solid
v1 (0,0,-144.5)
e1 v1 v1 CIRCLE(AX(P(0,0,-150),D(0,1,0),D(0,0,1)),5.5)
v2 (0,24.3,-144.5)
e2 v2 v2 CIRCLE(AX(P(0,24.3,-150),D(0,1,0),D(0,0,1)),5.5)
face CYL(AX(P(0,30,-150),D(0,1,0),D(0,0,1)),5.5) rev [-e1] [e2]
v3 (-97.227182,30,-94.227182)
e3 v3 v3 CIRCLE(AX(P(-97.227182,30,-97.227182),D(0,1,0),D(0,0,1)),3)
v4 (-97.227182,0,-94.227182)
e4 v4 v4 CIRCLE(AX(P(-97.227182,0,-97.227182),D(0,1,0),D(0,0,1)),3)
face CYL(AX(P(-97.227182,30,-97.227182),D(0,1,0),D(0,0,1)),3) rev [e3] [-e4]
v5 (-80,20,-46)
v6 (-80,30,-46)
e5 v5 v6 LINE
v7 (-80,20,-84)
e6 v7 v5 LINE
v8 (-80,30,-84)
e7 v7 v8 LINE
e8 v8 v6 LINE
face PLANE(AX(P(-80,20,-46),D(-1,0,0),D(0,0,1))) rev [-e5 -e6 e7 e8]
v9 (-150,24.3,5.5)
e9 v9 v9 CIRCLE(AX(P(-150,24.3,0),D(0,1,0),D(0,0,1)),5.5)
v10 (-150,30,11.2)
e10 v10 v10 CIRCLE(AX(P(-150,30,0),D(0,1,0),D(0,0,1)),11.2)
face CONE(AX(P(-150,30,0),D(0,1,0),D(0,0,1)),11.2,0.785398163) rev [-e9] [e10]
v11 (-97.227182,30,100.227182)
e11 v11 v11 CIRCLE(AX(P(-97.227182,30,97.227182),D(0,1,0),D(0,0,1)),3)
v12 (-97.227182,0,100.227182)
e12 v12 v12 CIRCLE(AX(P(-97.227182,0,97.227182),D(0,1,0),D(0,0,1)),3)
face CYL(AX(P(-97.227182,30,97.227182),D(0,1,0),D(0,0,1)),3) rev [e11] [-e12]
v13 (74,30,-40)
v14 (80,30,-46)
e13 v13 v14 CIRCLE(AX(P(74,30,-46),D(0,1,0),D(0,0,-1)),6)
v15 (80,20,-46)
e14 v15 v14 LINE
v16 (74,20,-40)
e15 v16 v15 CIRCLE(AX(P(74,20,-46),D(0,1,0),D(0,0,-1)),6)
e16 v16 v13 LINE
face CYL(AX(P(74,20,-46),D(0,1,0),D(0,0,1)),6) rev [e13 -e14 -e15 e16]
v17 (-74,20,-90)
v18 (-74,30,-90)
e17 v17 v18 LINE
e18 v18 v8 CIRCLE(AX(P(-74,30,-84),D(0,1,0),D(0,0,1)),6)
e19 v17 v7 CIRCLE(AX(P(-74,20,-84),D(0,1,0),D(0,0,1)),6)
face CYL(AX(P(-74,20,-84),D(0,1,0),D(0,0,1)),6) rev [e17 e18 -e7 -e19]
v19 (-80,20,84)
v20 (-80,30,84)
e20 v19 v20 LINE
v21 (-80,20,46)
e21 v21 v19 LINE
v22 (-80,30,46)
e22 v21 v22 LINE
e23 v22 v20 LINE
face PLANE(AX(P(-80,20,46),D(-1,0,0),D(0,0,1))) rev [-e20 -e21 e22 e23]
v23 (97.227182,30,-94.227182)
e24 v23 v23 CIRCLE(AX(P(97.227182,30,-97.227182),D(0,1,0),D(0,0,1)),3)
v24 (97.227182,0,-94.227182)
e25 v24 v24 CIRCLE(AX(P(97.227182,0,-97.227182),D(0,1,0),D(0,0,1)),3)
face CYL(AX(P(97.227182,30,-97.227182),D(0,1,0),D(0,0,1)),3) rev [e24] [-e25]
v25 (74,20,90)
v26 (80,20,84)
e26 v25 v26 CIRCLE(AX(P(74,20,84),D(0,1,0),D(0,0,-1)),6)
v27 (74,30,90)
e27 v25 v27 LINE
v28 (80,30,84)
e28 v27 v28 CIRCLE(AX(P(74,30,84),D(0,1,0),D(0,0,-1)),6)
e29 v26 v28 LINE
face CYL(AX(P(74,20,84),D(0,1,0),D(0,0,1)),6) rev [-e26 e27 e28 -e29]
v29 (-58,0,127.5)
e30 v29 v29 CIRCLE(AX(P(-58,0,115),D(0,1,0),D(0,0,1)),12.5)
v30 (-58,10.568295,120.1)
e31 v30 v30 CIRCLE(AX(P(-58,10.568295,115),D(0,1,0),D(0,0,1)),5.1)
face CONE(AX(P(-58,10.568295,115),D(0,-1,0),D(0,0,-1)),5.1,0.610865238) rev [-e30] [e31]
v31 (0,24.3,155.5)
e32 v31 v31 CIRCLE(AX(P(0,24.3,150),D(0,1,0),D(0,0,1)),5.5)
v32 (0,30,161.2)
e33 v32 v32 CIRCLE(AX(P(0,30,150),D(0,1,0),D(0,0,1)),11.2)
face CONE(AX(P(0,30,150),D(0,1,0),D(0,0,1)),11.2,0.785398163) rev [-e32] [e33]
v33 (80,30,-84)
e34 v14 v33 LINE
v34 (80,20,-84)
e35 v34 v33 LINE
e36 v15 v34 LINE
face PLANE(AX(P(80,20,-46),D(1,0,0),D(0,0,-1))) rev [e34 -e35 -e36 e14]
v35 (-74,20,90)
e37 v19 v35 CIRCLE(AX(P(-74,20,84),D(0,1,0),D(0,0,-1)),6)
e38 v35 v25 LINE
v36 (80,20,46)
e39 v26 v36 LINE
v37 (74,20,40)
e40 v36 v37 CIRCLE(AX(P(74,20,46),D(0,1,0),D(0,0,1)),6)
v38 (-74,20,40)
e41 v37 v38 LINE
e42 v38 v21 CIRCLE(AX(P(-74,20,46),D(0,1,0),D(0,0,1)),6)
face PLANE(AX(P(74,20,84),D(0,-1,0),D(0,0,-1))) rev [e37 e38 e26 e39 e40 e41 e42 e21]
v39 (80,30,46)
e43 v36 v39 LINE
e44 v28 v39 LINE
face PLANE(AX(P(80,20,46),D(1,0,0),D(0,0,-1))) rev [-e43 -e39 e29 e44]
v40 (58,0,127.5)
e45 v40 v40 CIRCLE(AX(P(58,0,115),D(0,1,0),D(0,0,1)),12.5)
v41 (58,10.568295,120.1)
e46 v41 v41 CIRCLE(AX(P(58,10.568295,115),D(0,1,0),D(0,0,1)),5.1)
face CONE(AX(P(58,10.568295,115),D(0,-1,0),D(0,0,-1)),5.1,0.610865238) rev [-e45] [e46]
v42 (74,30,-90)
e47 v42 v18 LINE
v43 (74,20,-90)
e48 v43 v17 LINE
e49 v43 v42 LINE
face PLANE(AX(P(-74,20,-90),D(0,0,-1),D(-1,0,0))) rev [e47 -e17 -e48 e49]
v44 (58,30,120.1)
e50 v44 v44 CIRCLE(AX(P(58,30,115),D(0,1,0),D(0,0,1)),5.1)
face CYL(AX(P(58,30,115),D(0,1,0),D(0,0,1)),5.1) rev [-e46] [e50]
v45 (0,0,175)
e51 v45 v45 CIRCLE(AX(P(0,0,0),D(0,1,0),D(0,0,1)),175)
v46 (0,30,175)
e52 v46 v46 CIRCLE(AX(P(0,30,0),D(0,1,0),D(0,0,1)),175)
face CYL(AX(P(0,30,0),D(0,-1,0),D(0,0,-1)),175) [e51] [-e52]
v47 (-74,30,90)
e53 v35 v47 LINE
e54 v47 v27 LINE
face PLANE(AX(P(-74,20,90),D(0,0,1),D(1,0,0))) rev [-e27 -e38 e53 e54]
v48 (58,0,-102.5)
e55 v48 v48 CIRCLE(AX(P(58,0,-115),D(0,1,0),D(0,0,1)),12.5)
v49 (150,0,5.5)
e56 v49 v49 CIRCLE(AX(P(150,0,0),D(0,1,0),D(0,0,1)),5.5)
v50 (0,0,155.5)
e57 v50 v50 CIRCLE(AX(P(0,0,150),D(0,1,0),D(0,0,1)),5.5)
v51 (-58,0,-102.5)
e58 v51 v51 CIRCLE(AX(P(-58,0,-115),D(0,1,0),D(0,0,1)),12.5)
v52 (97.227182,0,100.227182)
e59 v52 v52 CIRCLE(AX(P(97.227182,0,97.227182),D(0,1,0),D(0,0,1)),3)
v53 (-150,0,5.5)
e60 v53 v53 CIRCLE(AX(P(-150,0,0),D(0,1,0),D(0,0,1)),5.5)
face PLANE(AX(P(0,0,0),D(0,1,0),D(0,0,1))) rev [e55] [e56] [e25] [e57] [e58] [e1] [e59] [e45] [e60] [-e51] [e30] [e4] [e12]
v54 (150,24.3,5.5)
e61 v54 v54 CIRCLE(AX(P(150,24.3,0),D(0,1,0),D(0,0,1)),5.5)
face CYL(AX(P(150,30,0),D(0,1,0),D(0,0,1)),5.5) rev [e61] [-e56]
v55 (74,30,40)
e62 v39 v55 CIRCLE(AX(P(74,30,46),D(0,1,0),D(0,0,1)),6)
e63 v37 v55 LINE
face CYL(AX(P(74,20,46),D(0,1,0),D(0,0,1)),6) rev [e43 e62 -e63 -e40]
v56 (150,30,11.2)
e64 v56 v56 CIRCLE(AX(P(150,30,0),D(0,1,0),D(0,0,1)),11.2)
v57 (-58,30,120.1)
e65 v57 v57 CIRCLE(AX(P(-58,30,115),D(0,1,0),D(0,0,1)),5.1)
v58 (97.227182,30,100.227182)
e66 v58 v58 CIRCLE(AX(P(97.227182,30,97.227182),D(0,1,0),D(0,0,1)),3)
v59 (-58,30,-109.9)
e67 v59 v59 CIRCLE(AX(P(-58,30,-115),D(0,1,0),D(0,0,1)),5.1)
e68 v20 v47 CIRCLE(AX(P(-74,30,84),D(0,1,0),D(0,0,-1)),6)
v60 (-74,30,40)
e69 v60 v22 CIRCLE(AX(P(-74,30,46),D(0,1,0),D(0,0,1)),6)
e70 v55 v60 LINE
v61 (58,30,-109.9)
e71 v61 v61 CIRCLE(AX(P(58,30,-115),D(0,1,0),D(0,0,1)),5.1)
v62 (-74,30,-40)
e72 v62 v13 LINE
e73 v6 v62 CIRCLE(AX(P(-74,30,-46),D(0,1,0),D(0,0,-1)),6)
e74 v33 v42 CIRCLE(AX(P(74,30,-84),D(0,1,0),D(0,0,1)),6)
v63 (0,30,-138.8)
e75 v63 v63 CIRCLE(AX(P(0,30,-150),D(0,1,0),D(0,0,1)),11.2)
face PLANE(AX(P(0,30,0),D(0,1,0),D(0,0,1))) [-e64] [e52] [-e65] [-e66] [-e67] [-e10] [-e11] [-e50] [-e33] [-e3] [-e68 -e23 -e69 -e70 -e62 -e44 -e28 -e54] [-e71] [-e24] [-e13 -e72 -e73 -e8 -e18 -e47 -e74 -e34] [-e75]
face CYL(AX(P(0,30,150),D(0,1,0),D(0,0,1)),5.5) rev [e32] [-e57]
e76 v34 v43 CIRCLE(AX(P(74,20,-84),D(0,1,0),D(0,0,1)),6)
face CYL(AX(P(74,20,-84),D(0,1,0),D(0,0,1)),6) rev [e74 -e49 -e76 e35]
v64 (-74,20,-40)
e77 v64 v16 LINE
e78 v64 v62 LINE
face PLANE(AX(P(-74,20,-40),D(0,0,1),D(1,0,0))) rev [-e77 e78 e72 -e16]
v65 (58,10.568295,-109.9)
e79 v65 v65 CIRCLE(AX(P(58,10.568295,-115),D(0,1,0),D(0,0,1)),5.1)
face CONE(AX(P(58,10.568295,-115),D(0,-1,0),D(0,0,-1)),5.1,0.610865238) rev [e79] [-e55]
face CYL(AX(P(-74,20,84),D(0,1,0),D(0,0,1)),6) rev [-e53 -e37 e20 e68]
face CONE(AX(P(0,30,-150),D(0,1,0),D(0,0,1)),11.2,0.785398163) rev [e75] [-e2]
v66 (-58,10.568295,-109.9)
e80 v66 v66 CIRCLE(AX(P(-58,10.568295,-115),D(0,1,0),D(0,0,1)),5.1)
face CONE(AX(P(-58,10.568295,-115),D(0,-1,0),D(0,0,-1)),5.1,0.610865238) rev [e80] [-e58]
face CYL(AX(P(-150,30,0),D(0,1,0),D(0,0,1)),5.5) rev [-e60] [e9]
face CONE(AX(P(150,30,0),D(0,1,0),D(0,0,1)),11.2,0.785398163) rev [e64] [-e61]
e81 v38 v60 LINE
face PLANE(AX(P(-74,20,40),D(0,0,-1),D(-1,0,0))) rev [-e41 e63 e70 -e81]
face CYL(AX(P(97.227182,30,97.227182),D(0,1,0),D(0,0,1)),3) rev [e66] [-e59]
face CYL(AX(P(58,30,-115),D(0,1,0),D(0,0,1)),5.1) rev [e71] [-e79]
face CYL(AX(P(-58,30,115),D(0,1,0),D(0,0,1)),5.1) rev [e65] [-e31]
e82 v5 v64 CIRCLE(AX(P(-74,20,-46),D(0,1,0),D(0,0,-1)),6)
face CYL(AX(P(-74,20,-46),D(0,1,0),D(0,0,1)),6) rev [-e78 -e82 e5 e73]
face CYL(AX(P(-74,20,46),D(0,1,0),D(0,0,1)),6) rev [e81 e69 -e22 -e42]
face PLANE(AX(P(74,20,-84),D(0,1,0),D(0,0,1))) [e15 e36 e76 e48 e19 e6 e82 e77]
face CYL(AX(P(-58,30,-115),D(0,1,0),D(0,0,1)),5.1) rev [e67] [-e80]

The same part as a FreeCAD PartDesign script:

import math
import FreeCAD as App
import Part
import Sketcher
Q = App.Units.Quantity

doc = App.newDocument("Part")
body = doc.addObject("PartDesign::Body", "Body")

sketch1 = doc.addObject("Sketcher::SketchObject", "Sketch")
body.addObject(sketch1)
sketch1.AttachmentSupport = (doc.XZ_Plane, [""])
sketch1.MapMode = "FlatFace"
sketch1.addGeometry(Part.Circle(App.Vector(0, 0, 0), App.Vector(0, 0, 1), 175), False)
sketch1.addConstraint([
    Sketcher.Constraint("Coincident", 0, 3, -1, 1),
    Sketcher.Constraint("Diameter", 0, Q("350 mm")),
])
pad1 = doc.addObject("PartDesign::Pad", "Pad")
body.addObject(pad1)
pad1.Profile = sketch1
pad1.Length = 30
pad1.Reversed = True

sketch2 = doc.addObject("Sketcher::SketchObject", "Sketch001")
body.addObject(sketch2)
sketch2.AttachmentSupport = (doc.XZ_Plane, [""])
sketch2.MapMode = "FlatFace"
sketch2.AttachmentOffset = App.Placement(App.Vector(0, 0, -30), App.Rotation())
sketch2.addGeometry([
    Part.Circle(App.Vector(-150, 0, 0), App.Vector(0, 0, 1), 5.5),
    Part.Circle(App.Vector(0, 150, 0), App.Vector(0, 0, 1), 5.5),
    Part.Circle(App.Vector(150, 0, 0), App.Vector(0, 0, 1), 5.5),
    Part.Circle(App.Vector(0, -150, 0), App.Vector(0, 0, 1), 5.5),
], False)
sketch2.addConstraint([
    Sketcher.Constraint("Equal", 0, 1),
    Sketcher.Constraint("Equal", 1, 2),
    Sketcher.Constraint("Equal", 2, 3),
    Sketcher.Constraint("Symmetric", 0, 3, 2, 3, -1, 1),
    Sketcher.Constraint("Symmetric", 1, 3, 3, 3, -1, 1),
    Sketcher.Constraint("PointOnObject", 0, 3, -1),
    Sketcher.Constraint("PointOnObject", 1, 3, -2),
    Sketcher.Constraint("Diameter", 0, Q("11 mm")),
    Sketcher.Constraint("DistanceX", 0, 3, -1, 1, Q("150 mm")),
    Sketcher.Constraint("DistanceY", -1, 1, 1, 3, Q("150 mm")),
])
doc.recompute()
hole = doc.addObject("PartDesign::Hole", "Hole")
body.addObject(hole)
hole.Profile = sketch2
hole.ThreadType = "None"
hole.Diameter = 11
hole.DepthType = "ThroughAll"
hole.HoleCutType = "Countersink"
hole.HoleCutDiameter = 22.4
hole.HoleCutCountersinkAngle = 90
hole.Reversed = True

sketch3 = doc.addObject("Sketcher::SketchObject", "Sketch002")
body.addObject(sketch3)
sketch3.AttachmentSupport = (doc.XZ_Plane, [""])
sketch3.MapMode = "FlatFace"
sketch3.AttachmentOffset = App.Placement(App.Vector(0, 0, -30), App.Rotation())
sketch3.addGeometry([
    Part.Circle(App.Vector(-97.227182, 97.227182, 0), App.Vector(0, 0, 1), 3),
    Part.Circle(App.Vector(97.227182, 97.227182, 0), App.Vector(0, 0, 1), 3),
    Part.Circle(App.Vector(97.227182, -97.227182, 0), App.Vector(0, 0, 1), 3),
    Part.Circle(App.Vector(-97.227182, -97.227182, 0), App.Vector(0, 0, 1), 3),
], False)
sketch3.addConstraint([
    Sketcher.Constraint("Equal", 0, 1),
    Sketcher.Constraint("Equal", 1, 2),
    Sketcher.Constraint("Equal", 2, 3),
    Sketcher.Constraint("Symmetric", 0, 3, 2, 3, -1, 1),
    Sketcher.Constraint("Symmetric", 1, 3, 3, 3, -1, 1),
    Sketcher.Constraint("Symmetric", 0, 3, 1, 3, -2),
    Sketcher.Constraint("Diameter", 0, Q("6 mm")),
    Sketcher.Constraint("DistanceX", 0, 3, -1, 1, Q("97.227182 mm")),
    Sketcher.Constraint("DistanceY", -1, 1, 0, 3, Q("97.227182 mm")),
])
doc.recompute()
hole2 = doc.addObject("PartDesign::Hole", "Hole001")
body.addObject(hole2)
hole2.Profile = sketch3
hole2.ThreadType = "None"
hole2.Diameter = 6
hole2.DepthType = "ThroughAll"
hole2.Reversed = True

sketch4 = doc.addObject("Sketcher::SketchObject", "Sketch003")
body.addObject(sketch4)
sketch4.AttachmentSupport = (doc.XZ_Plane, [""])
sketch4.MapMode = "FlatFace"
sketch4.AttachmentOffset = App.Placement(App.Vector(0, 0, -30), App.Rotation())
sketch4.addGeometry([
    Part.LineSegment(App.Vector(74, 40, 0), App.Vector(-74, 40, 0)),
    Part.ArcOfCircle(Part.Circle(App.Vector(-74, 46, 0), App.Vector(0, 0, 1), 6), math.radians(180), math.radians(270)),
    Part.LineSegment(App.Vector(-80, 46, 0), App.Vector(-80, 84, 0)),
    Part.ArcOfCircle(Part.Circle(App.Vector(-74, 84, 0), App.Vector(0, 0, 1), 6), math.radians(90), math.radians(180)),
    Part.LineSegment(App.Vector(-74, 90, 0), App.Vector(74, 90, 0)),
    Part.ArcOfCircle(Part.Circle(App.Vector(74, 84, 0), App.Vector(0, 0, 1), 6), math.radians(0), math.radians(90)),
    Part.LineSegment(App.Vector(80, 84, 0), App.Vector(80, 46, 0)),
    Part.ArcOfCircle(Part.Circle(App.Vector(74, 46, 0), App.Vector(0, 0, 1), 6), math.radians(-90), math.radians(0)),
    Part.LineSegment(App.Vector(80, -46, 0), App.Vector(80, -84, 0)),
    Part.ArcOfCircle(Part.Circle(App.Vector(74, -84, 0), App.Vector(0, 0, 1), 6), math.radians(-90), math.radians(0)),
    Part.LineSegment(App.Vector(74, -90, 0), App.Vector(-74, -90, 0)),
    Part.ArcOfCircle(Part.Circle(App.Vector(-74, -84, 0), App.Vector(0, 0, 1), 6), math.radians(180), math.radians(270)),
    Part.LineSegment(App.Vector(-80, -84, 0), App.Vector(-80, -46, 0)),
    Part.ArcOfCircle(Part.Circle(App.Vector(-74, -46, 0), App.Vector(0, 0, 1), 6), math.radians(90), math.radians(180)),
    Part.LineSegment(App.Vector(-74, -40, 0), App.Vector(74, -40, 0)),
    Part.ArcOfCircle(Part.Circle(App.Vector(74, -46, 0), App.Vector(0, 0, 1), 6), math.radians(0), math.radians(90)),
], False)
sketch4.addConstraint([
    Sketcher.Constraint("Tangent", 0, 2, 1, 2),
    Sketcher.Constraint("Tangent", 1, 1, 2, 1),
    Sketcher.Constraint("Tangent", 2, 2, 3, 2),
    Sketcher.Constraint("Tangent", 3, 1, 4, 1),
    Sketcher.Constraint("Tangent", 4, 2, 5, 2),
    Sketcher.Constraint("Tangent", 5, 1, 6, 1),
    Sketcher.Constraint("Tangent", 6, 2, 7, 2),
    Sketcher.Constraint("Tangent", 7, 1, 0, 1),
    Sketcher.Constraint("Tangent", 8, 2, 9, 2),
    Sketcher.Constraint("Tangent", 9, 1, 10, 1),
    Sketcher.Constraint("Tangent", 10, 2, 11, 2),
    Sketcher.Constraint("Tangent", 11, 1, 12, 1),
    Sketcher.Constraint("Tangent", 12, 2, 13, 2),
    Sketcher.Constraint("Tangent", 13, 1, 14, 1),
    Sketcher.Constraint("Tangent", 14, 2, 15, 2),
    Sketcher.Constraint("Tangent", 15, 1, 8, 1),
    Sketcher.Constraint("Horizontal", 0),
    Sketcher.Constraint("Vertical", 2),
    Sketcher.Constraint("Horizontal", 4),
    Sketcher.Constraint("Vertical", 6),
    Sketcher.Constraint("Vertical", 8),
    Sketcher.Constraint("Horizontal", 10),
    Sketcher.Constraint("Vertical", 12),
    Sketcher.Constraint("Horizontal", 14),
    Sketcher.Constraint("Equal", 1, 3),
    Sketcher.Constraint("Equal", 3, 5),
    Sketcher.Constraint("Equal", 5, 7),
    Sketcher.Constraint("Equal", 7, 9),
    Sketcher.Constraint("Equal", 9, 11),
    Sketcher.Constraint("Equal", 11, 13),
    Sketcher.Constraint("Equal", 13, 15),
    Sketcher.Constraint("Symmetric", 3, 3, 9, 3, -1, 1),
    Sketcher.Constraint("Symmetric", 7, 3, 13, 3, -1, 1),
    Sketcher.Constraint("Vertical", 7, 3, 9, 3),
    Sketcher.Constraint("Radius", 1, Q("6 mm")),
    Sketcher.Constraint("DistanceX", 0, 2, 0, 1, Q("148 mm")),
    Sketcher.Constraint("DistanceY", 2, 1, 2, 2, Q("38 mm")),
    Sketcher.Constraint("DistanceY", -1, 1, 1, 3, Q("46 mm")),
])
pocket1 = doc.addObject("PartDesign::Pocket", "Pocket")
body.addObject(pocket1)
pocket1.Profile = sketch4
pocket1.Length = 10
pocket1.Reversed = True

sketch5 = doc.addObject("Sketcher::SketchObject", "Sketch004")
body.addObject(sketch5)
sketch5.AttachmentSupport = (doc.YZ_Plane, [""])
sketch5.MapMode = "FlatFace"
sketch5.AttachmentOffset = App.Placement(App.Vector(0, 0, -58), App.Rotation())
sketch5.addGeometry([
    Part.LineSegment(App.Vector(0, -115, 0), App.Vector(30, -115, 0)),
    Part.LineSegment(App.Vector(30, -115, 0), App.Vector(30, -109.9, 0)),
    Part.LineSegment(App.Vector(30, -109.9, 0), App.Vector(10.568295, -109.9, 0)),
    Part.LineSegment(App.Vector(10.568295, -109.9, 0), App.Vector(0, -102.5, 0)),
    Part.LineSegment(App.Vector(0, -102.5, 0), App.Vector(0, -115, 0)),
], False)
sketch5.addGeometry(Part.LineSegment(App.Vector(30, -115, 0), App.Vector(0, -115, 0)), True)
sketch5.addConstraint([
    Sketcher.Constraint("Coincident", 0, 2, 1, 1),
    Sketcher.Constraint("Coincident", 1, 2, 2, 1),
    Sketcher.Constraint("Coincident", 2, 2, 3, 1),
    Sketcher.Constraint("Coincident", 3, 2, 4, 1),
    Sketcher.Constraint("Coincident", 4, 2, 0, 1),
    Sketcher.Constraint("Horizontal", 0),
    Sketcher.Constraint("Vertical", 1),
    Sketcher.Constraint("Horizontal", 2),
    Sketcher.Constraint("Vertical", 4),
    Sketcher.Constraint("Horizontal", 5),
    Sketcher.Constraint("Coincident", 5, 1, 0, 2),
    Sketcher.Constraint("PointOnObject", 3, 2, -2),
    Sketcher.Constraint("PointOnObject", 5, 2, -2),
    Sketcher.Constraint("DistanceX", 0, 1, 0, 2, Q("30 mm")),
    Sketcher.Constraint("Angle", 3, Q("145 deg")),
    Sketcher.Constraint("DistanceY", 1, 1, 1, 2, Q("5.1 mm")),
    Sketcher.Constraint("DistanceY", 4, 2, 4, 1, Q("12.5 mm")),
    Sketcher.Constraint("DistanceY", 0, 2, -1, 1, Q("115 mm")),
])
groove = doc.addObject("PartDesign::Groove", "Groove")
body.addObject(groove)
groove.Profile = sketch5
groove.ReferenceAxis = (sketch5, ["Axis0"])
groove.Angle = 360
doc.recompute()

linearpattern = doc.addObject("PartDesign::LinearPattern", "LinearPattern")
body.addObject(linearpattern)
linearpattern.Originals = [groove]
linearpattern.Direction = (doc.X_Axis, [""])
linearpattern.Mode = "offset"
linearpattern.Offset = 116
linearpattern.Occurrences = 2
body.Tip = linearpattern
doc.recompute()

datumline = doc.addObject("PartDesign::Line", "DatumLine")
body.addObject(datumline)
datumline.Placement = App.Placement(App.Vector(0, 0, 0), App.Rotation(App.Vector(0, 0, 1), App.Vector(0.450316531, 0, 0.892868984)))
linearpattern2 = doc.addObject("PartDesign::LinearPattern", "LinearPattern001")
body.addObject(linearpattern2)
linearpattern2.Originals = [groove]
linearpattern2.Direction = (datumline, [""])
linearpattern2.Mode = "offset"
linearpattern2.Offset = 257.596584
linearpattern2.Occurrences = 2
body.Tip = linearpattern2
doc.recompute()

linearpattern3 = doc.addObject("PartDesign::LinearPattern", "LinearPattern002")
body.addObject(linearpattern3)
linearpattern3.Originals = [groove]
linearpattern3.Direction = (doc.Z_Axis, [""])
linearpattern3.Mode = "offset"
linearpattern3.Offset = 230
linearpattern3.Occurrences = 2
body.Tip = linearpattern3

doc.recompute()
